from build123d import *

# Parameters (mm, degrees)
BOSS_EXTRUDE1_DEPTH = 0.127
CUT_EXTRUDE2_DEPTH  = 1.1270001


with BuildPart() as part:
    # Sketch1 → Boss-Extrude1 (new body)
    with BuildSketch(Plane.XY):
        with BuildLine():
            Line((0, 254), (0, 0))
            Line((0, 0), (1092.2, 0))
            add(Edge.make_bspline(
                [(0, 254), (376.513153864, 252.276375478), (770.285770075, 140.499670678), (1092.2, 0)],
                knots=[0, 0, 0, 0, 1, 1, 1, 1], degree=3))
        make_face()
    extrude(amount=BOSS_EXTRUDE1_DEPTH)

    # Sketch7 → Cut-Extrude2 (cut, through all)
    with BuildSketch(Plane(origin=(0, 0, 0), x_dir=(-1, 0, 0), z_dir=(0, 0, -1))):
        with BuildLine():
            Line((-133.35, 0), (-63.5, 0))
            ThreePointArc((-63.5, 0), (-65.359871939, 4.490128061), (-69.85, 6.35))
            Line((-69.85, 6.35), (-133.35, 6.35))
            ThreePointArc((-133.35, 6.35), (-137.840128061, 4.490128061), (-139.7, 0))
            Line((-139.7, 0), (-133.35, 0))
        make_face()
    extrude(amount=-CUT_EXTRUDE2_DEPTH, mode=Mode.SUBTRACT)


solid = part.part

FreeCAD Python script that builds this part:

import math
import FreeCAD as App
import Part
import Sketcher
Q = App.Units.Quantity

doc = App.newDocument("Part")
body = doc.addObject("PartDesign::Body", "Body")

# Sketch on XY plane
sketch1 = doc.addObject("Sketcher::SketchObject", "Sketch")
body.addObject(sketch1)
sketch1.AttachmentSupport = (doc.XY_Plane, [""])
sketch1.MapMode = "FlatFace"
sketch1.addGeometry([
    Part.LineSegment(App.Vector(0, 254, 0), App.Vector(0, 0, 0)),
    Part.LineSegment(App.Vector(0, 0, 0), App.Vector(1092.2, 0, 0)),
    Part.BSplineCurve([App.Vector(0, 254, 0), App.Vector(376.513154, 252.276375, 0), App.Vector(770.28577, 140.499671, 0), App.Vector(1092.2, 0, 0)], [4, 4], [0, 1], False, 3, [1, 1, 1, 1], False),
], False)
sketch1.addConstraint([
    Sketcher.Constraint("Block", 2),
    Sketcher.Constraint("Coincident", 0, 2, 1, 1),
    Sketcher.Constraint("Coincident", 1, 2, 2, 2),
    Sketcher.Constraint("Coincident", 2, 1, 0, 1),
    Sketcher.Constraint("Vertical", 0),
    Sketcher.Constraint("Horizontal", 1),
])
pad1 = doc.addObject("PartDesign::Pad", "Pad")
body.addObject(pad1)
pad1.Profile = sketch1
pad1.Length = Q("0.005 in")

# Sketch on XY plane
sketch2 = doc.addObject("Sketcher::SketchObject", "Sketch001")
body.addObject(sketch2)
sketch2.AttachmentSupport = (doc.XY_Plane, [""])
sketch2.MapMode = "FlatFace"
sketch2.addGeometry([
    Part.ArcOfCircle(Part.Circle(App.Vector(70, 0, 0), App.Vector(0, 0, 1), 6), math.radians(90), math.radians(180)),
    Part.LineSegment(App.Vector(70, 6, 0), App.Vector(133, 6, 0)),
    Part.ArcOfCircle(Part.Circle(App.Vector(133, 0, 0), App.Vector(0, 0, 1), 6), math.radians(0), math.radians(90)),
    Part.LineSegment(App.Vector(140, 0, 0), App.Vector(64, 0, 0)),
], False)
sketch2.addConstraint([
    Sketcher.Constraint("Tangent", 0, 1, 1, 1),
    Sketcher.Constraint("Tangent", 1, 2, 2, 2),
    Sketcher.Constraint("Coincident", 2, 1, 3, 1),
    Sketcher.Constraint("Coincident", 3, 2, 0, 2),
    Sketcher.Constraint("Horizontal", 1),
    Sketcher.Constraint("Horizontal", 3),
    Sketcher.Constraint("Equal", 0, 2),
    Sketcher.Constraint("PointOnObject", 0, 3, -1),
    Sketcher.Constraint("PointOnObject", 2, 1, -1),
    Sketcher.Constraint("DistanceX", 3, 2, 3, 1, Q("3 in")),
    Sketcher.Constraint("Radius", 0, Q("0.25 in")),
    Sketcher.Constraint("DistanceX", -1, 1, 2, 1, Q("5.5 in")),
])
pocket1 = doc.addObject("PartDesign::Pocket", "Pocket")
body.addObject(pocket1)
pocket1.Profile = sketch2
pocket1.Type = "ThroughAll"
pocket1.Reversed = True

doc.recompute()
